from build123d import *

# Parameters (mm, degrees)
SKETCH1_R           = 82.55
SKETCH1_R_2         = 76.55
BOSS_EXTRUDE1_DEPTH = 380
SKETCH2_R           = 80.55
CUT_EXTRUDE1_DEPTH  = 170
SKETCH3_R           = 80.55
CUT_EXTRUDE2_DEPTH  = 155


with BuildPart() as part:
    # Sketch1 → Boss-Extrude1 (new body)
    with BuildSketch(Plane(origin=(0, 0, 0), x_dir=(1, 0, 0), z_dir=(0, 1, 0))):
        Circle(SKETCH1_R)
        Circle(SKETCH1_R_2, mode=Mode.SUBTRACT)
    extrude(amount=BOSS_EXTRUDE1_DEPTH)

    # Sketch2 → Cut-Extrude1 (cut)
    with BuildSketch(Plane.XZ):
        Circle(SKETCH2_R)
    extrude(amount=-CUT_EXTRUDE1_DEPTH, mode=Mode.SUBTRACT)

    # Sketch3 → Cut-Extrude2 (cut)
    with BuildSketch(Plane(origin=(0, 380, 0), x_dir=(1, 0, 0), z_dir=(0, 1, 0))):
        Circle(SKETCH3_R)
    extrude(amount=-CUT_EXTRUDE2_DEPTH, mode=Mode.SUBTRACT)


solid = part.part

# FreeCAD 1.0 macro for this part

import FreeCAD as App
import Part
import Sketcher

doc = App.newDocument("Part")
body = doc.addObject("PartDesign::Body", "Body")

# Sketch on XZ plane
sketch1 = body.newObject("Sketcher::SketchObject", "Sketch")
sketch1.AttachmentSupport = (doc.getObject("XZ_Plane"), [""])
sketch1.MapMode = "FlatFace"
sketch1.addGeometry(Part.Circle(App.Vector(0, 0, 0), App.Vector(0, 0, 1), 83), False)
sketch1.addGeometry(Part.Circle(App.Vector(0, 0, 0), App.Vector(0, 0, 1), 77), False)
sketch1.addConstraint(Sketcher.Constraint("Coincident", 0, 3, -1, 1))
sketch1.addConstraint(Sketcher.Constraint("Coincident", 1, 3, -1, 1))
sketch1.addConstraint(Sketcher.Constraint("Diameter", 0, 165.1))
sketch1.addConstraint(Sketcher.Constraint("Diameter", 1, 153.1))
pad1 = body.newObject("PartDesign::Pad", "Pad")
pad1.Profile = sketch1
pad1.Length = 380
pad1.Reversed = True

# Sketch on XZ plane
sketch2 = body.newObject("Sketcher::SketchObject", "Sketch001")
sketch2.AttachmentSupport = (doc.getObject("XZ_Plane"), [""])
sketch2.MapMode = "FlatFace"
sketch2.addGeometry(Part.Circle(App.Vector(0, 0, 0), App.Vector(0, 0, 1), 81), False)
sketch2.addConstraint(Sketcher.Constraint("Coincident", 0, 3, -1, 1))
sketch2.addConstraint(Sketcher.Constraint("Diameter", 0, 161.1))
pocket1 = body.newObject("PartDesign::Pocket", "Pocket")
pocket1.Profile = sketch2
pocket1.Length = 170

# Sketch on XZ plane
sketch3 = body.newObject("Sketcher::SketchObject", "Sketch002")
sketch3.AttachmentSupport = (doc.getObject("XZ_Plane"), [""])
sketch3.MapMode = "FlatFace"
sketch3.AttachmentOffset = App.Placement(App.Vector(0, 0, -380), App.Rotation())
sketch3.addGeometry(Part.Circle(App.Vector(0, 0, 0), App.Vector(0, 0, 1), 81), False)
sketch3.addConstraint(Sketcher.Constraint("Coincident", 0, 3, -1, 1))
sketch3.addConstraint(Sketcher.Constraint("Diameter", 0, 161.1))
pocket2 = body.newObject("PartDesign::Pocket", "Pocket001")
pocket2.Profile = sketch3
pocket2.Length = 155
pocket2.Reversed = True

doc.recompute()
